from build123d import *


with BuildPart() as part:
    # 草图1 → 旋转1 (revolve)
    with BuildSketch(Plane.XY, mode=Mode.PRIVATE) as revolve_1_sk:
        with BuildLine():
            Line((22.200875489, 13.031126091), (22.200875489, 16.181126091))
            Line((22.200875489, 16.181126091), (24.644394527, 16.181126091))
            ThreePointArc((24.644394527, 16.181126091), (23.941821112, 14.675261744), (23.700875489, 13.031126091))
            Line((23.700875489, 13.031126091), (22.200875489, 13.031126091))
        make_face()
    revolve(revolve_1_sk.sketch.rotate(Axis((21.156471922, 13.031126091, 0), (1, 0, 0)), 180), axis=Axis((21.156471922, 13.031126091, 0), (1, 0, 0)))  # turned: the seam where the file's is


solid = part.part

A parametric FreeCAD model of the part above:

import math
import FreeCAD as App
import Part
import Sketcher
from FreeCAD import Vector
Q = App.Units.Quantity

doc = App.newDocument("Part")
params = doc.addObject("Spreadsheet::Sheet", "Params")
for row, (alias, value) in enumerate([
    ("sketch1_radius", "5.73 mm"),
    ("sketch1_width", "1.5 mm"),
    ("sketch1_height", "3.15 mm"),
    ("revolution_angle", "360 deg"),
], start=1):
    params.set(f"A{row}", alias)
    params.set(f"B{row}", "=" + value)
    params.setAlias(f"B{row}", alias)

body = doc.addObject("PartDesign::Body", "Body")

sketch1 = doc.addObject("Sketcher::SketchObject", "Sketch")
body.addObject(sketch1)
sketch1.AttachmentSupport = (doc.XY_Plane, [""])
sketch1.MapMode = "FlatFace"
sketch1.addGeometry([
    Part.LineSegment(Vector(22.2, 16.2, 0), Vector(22.2, 13, 0)),
    Part.LineSegment(Vector(22.2, 13, 0), Vector(23.7, 13, 0)),
    Part.ArcOfCircle(Part.Circle(Vector(29.4, 13, 0), Vector(0, 0, 1), 5.7), math.radians(147), math.radians(180)),
    Part.LineSegment(Vector(24.6, 16.2, 0), Vector(22.2, 16.2, 0)),
], False)
sketch1.addGeometry(Part.LineSegment(Vector(22.2, 13, 0), Vector(29.4, 13, 0)), True)
sketch1.addConstraint([
    Sketcher.Constraint("Coincident", 0, 2, 1, 1),
    Sketcher.Constraint("Coincident", 1, 2, 2, 2),
    Sketcher.Constraint("Coincident", 2, 1, 3, 1),
    Sketcher.Constraint("Coincident", 3, 2, 0, 1),
    Sketcher.Constraint("Vertical", 0),
    Sketcher.Constraint("Horizontal", 1),
    Sketcher.Constraint("Horizontal", 3),
    Sketcher.Constraint("Horizontal", 4),
    Sketcher.Constraint("Coincident", 4, 1, 0, 2),
    Sketcher.Constraint("Coincident", 4, 2, 2, 3),
    Sketcher.Constraint("Radius", 2, Q("5.73 mm")),
    Sketcher.Constraint("DistanceX", 1, 1, 1, 2, Q("1.5 mm")),
    Sketcher.Constraint("DistanceY", 0, 2, 0, 1, Q("3.15 mm")),
    Sketcher.Constraint("DistanceX", -1, 1, 2, 3, Q("29.430875 mm")),
    Sketcher.Constraint("DistanceY", -1, 1, 2, 3, Q("13.031126 mm")),
])
sketch1.setExpression("Constraints[10]", "Params.sketch1_radius")
sketch1.setExpression("Constraints[11]", "Params.sketch1_width")
sketch1.setExpression("Constraints[12]", "Params.sketch1_height")
revolution = doc.addObject("PartDesign::Revolution", "Revolution")
body.addObject(revolution)
revolution.Profile = sketch1
revolution.ReferenceAxis = (sketch1, ["Axis0"])
revolution.setExpression("Angle", "Params.revolution_angle")

doc.recompute()
